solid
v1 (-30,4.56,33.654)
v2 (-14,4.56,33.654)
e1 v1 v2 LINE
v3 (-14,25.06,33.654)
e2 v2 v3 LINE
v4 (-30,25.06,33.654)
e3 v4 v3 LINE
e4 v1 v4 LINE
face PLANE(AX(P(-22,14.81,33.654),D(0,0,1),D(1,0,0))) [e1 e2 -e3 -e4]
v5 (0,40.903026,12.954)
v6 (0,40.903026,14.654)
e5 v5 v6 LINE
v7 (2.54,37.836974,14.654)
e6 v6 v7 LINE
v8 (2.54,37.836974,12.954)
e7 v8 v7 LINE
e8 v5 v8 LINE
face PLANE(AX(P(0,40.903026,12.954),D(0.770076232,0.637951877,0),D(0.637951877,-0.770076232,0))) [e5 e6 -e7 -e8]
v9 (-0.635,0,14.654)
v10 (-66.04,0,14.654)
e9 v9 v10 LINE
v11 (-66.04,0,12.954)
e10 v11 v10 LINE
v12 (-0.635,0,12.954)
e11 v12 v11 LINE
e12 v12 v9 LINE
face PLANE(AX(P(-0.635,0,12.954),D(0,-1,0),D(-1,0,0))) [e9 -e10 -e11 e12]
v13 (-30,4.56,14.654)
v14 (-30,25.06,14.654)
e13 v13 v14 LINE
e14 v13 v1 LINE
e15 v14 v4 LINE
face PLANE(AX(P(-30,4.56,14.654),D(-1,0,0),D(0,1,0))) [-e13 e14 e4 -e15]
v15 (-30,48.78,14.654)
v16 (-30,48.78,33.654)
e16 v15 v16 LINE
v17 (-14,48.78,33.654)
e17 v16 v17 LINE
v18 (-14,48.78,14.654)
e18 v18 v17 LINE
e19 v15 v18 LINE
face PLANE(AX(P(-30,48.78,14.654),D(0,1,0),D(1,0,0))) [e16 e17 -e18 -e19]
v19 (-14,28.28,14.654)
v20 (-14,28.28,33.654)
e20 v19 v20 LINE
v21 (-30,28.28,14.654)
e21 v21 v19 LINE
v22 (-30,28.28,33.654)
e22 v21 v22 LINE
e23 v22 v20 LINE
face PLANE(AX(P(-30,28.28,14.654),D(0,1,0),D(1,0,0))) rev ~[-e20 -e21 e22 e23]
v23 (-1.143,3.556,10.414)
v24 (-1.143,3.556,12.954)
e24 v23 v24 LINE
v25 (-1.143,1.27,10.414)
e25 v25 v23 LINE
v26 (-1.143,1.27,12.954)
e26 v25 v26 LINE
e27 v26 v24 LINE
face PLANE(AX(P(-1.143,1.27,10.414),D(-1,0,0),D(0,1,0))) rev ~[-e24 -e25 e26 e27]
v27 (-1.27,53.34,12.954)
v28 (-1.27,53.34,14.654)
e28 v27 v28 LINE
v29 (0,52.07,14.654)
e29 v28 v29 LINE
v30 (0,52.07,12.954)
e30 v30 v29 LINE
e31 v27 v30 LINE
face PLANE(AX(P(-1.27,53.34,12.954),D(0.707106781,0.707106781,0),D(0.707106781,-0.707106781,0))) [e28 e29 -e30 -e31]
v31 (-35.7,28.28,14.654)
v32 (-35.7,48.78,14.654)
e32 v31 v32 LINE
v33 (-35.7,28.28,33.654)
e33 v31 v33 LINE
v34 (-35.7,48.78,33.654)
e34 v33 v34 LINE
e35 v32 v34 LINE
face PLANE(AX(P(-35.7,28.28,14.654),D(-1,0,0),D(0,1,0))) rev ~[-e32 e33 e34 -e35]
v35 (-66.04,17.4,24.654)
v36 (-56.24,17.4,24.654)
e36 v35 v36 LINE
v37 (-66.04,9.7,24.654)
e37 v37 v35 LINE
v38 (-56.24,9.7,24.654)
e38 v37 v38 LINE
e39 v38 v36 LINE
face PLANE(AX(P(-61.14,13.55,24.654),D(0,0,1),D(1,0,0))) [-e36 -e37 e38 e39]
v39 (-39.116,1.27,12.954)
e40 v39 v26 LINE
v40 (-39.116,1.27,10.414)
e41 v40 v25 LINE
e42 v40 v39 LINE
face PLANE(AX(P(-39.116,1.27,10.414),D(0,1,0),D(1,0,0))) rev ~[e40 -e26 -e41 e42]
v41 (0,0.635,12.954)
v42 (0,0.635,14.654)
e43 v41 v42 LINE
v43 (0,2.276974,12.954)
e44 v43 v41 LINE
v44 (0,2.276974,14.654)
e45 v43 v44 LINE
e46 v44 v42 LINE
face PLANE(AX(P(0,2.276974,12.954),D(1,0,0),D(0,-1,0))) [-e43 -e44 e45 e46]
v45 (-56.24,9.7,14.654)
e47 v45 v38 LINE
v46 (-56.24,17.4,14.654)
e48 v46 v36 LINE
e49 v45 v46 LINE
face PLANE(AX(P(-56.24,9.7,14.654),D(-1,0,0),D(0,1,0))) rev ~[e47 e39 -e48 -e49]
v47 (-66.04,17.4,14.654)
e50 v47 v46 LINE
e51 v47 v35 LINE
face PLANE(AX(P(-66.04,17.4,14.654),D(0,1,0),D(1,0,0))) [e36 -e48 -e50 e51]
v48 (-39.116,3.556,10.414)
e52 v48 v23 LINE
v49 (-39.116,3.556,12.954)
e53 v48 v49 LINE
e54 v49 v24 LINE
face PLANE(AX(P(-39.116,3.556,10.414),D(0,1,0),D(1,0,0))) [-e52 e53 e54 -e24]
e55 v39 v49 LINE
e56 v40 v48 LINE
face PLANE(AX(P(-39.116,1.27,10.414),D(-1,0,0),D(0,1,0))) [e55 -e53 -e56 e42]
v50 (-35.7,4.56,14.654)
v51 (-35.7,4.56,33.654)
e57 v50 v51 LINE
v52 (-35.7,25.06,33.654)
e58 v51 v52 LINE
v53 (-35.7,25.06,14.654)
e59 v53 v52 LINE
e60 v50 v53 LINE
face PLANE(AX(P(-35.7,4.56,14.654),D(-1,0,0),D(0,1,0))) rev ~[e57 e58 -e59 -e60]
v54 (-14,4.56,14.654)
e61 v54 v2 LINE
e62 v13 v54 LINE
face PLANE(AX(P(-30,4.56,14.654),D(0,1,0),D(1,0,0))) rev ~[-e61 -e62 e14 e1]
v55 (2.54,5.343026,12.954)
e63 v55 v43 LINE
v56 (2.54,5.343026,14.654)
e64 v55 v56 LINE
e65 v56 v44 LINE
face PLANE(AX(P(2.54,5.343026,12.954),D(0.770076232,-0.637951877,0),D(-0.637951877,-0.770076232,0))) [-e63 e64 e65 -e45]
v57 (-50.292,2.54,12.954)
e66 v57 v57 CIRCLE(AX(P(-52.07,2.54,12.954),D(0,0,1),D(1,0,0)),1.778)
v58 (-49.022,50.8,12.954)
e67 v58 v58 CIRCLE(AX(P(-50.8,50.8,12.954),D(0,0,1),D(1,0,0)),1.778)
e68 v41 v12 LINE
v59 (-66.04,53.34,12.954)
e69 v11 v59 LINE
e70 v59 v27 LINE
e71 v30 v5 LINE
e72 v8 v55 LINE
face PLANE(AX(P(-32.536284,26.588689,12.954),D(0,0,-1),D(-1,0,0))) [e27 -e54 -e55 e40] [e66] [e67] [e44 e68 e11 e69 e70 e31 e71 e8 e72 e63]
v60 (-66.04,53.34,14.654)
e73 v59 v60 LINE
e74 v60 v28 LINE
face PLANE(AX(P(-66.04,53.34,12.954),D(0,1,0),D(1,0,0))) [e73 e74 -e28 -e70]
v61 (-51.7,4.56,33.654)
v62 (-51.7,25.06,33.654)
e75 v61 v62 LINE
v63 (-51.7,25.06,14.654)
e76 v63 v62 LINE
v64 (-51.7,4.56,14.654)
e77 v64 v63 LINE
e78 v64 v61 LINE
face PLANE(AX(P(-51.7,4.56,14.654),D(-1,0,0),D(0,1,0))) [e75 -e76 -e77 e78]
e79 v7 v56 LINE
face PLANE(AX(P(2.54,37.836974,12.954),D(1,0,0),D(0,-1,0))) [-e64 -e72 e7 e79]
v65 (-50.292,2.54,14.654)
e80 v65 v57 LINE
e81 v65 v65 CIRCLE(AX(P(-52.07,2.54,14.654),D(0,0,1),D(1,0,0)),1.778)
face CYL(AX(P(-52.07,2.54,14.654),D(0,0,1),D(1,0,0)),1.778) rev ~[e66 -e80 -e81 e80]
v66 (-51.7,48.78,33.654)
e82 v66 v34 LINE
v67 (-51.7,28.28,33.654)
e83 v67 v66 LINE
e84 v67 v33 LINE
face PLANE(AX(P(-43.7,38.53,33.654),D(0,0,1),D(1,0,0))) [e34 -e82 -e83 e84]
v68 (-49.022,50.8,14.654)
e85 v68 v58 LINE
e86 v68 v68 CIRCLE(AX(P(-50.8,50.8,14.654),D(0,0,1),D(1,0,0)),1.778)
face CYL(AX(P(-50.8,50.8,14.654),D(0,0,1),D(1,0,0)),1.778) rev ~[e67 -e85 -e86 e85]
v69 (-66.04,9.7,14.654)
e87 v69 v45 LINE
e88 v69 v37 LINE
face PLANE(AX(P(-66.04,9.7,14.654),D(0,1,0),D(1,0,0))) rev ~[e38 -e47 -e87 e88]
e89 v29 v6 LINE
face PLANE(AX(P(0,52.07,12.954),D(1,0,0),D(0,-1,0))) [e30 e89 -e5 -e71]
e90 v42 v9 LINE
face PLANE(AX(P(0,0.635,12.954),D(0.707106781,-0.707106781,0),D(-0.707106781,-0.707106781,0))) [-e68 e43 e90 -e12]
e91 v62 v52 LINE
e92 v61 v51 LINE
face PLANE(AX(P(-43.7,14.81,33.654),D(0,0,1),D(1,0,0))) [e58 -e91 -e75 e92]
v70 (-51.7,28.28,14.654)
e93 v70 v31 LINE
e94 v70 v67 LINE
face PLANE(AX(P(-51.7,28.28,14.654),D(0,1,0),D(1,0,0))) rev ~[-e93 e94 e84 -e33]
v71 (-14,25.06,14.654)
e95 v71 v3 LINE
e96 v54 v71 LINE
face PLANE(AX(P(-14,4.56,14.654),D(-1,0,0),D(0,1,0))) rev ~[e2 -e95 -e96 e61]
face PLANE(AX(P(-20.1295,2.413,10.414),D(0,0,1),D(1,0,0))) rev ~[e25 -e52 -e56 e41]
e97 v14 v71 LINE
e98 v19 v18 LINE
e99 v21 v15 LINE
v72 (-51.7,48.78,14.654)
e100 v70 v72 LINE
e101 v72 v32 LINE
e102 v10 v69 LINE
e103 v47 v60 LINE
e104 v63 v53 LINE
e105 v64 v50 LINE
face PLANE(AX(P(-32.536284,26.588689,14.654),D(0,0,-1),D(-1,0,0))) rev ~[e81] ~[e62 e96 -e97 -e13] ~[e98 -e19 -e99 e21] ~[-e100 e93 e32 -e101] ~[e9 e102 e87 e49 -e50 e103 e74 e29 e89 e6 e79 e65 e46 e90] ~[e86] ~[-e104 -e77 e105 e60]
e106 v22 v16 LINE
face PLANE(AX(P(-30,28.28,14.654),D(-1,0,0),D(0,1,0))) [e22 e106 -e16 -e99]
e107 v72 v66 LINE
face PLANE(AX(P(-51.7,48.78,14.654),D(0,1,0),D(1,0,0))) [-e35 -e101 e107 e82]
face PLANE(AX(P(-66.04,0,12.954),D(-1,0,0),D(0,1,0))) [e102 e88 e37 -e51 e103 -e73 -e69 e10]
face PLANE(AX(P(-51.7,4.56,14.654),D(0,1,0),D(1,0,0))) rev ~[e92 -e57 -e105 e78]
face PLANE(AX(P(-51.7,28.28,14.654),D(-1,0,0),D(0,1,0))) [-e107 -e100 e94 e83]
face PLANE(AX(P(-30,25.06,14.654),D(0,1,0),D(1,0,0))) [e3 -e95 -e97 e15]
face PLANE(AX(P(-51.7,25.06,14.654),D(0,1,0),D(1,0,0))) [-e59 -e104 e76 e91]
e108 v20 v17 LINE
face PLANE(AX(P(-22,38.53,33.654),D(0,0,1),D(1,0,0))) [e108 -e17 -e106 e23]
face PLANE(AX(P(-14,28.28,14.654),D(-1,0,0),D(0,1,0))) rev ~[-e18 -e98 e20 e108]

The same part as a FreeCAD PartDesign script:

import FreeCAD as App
import Part
import Sketcher
from FreeCAD import Vector
Q = App.Units.Quantity


def add_polygon(sketch, points):
    """Adds a closed chain of lines whose ends are joined by coincident constraints."""
    first, n = sketch.GeometryCount, len(points)
    for a, b in zip(points, points[1:] + points[:1]):
        sketch.addGeometry(Part.LineSegment(App.Vector(*a, 0), App.Vector(*b, 0)), False)
    for i in range(n):
        sketch.addConstraint(Sketcher.Constraint("Coincident", first + i, 2, first + (i + 1) % n, 1))

doc = App.newDocument("Part")
params = doc.addObject("Spreadsheet::Sheet", "Params")
for row, (alias, value) in enumerate([
    ("pad1_length", "2.54 mm"),
    ("sketch2_width", "64.77 mm"),
    ("sketch2_height", "53.34 mm"),
    ("pad2_length", "1.7 mm"),
    ("pocket1_length", "5 mm"),
    ("sketch4_width", "16 mm"),
    ("sketch4_height", "20.5 mm"),
    ("pad3_length", "19 mm"),
    ("sketch5_width", "9.8 mm"),
    ("sketch5_height", "7.7 mm"),
    ("pad4_length", "10 mm"),
], start=1):
    params.set(f"A{row}", alias)
    params.set(f"B{row}", "=" + value)
    params.setAlias(f"B{row}", alias)

body = doc.addObject("PartDesign::Body", "Body")

# Sketch on XY plane
sketch1 = body.newObject("Sketcher::SketchObject", "Sketch")
sketch1.AttachmentSupport = (doc.getObject("XY_Plane"), [""])
sketch1.MapMode = "FlatFace"
sketch1.AttachmentOffset = App.Placement(Vector(0, 0, 10.414), App.Rotation())
add_polygon(sketch1, [(-39.1, 3.6), (-39.1, 1.3), (-1.1, 1.3), (-1.1, 3.6)])  # lines 0-3
sketch1.addConstraint([
    Sketcher.Constraint("Vertical", 0),
    Sketcher.Constraint("Horizontal", 1),
    Sketcher.Constraint("Vertical", 2),
    Sketcher.Constraint("Horizontal", 3),
    Sketcher.Constraint("DistanceX", 1, 1, 1, 2, 37.973),
    Sketcher.Constraint("DistanceY", 0, 2, 0, 1, 2.286),
    Sketcher.Constraint("DistanceY", -1, 1, 0, 2, 1.27),
    Sketcher.Constraint("DistanceX", 0, 2, -1, 1, 39.116),
])
pad1 = body.newObject("PartDesign::Pad", "Pad")
pad1.Profile = sketch1
pad1.setExpression("Length", "Params.pad1_length")

# Sketch on XY plane
sketch2 = body.newObject("Sketcher::SketchObject", "Sketch001")
sketch2.AttachmentSupport = (doc.getObject("XY_Plane"), [""])
sketch2.MapMode = "FlatFace"
sketch2.AttachmentOffset = App.Placement(Vector(0, 0, 12.954), App.Rotation())
add_polygon(sketch2, [(-1.3, 53.3), (-66, 53.3), (-66, 0), (-0.6, 0), (0, 0.6), (0, 2.3), (2.5, 5.3), (2.5, 37.8), (0, 40.9), (0, 52.1)])  # lines 0-9
sketch2.addConstraint([
    Sketcher.Constraint("Horizontal", 0),
    Sketcher.Constraint("Vertical", 1),
    Sketcher.Constraint("Horizontal", 2),
    Sketcher.Constraint("Vertical", 4),
    Sketcher.Constraint("Vertical", 6),
    Sketcher.Constraint("Vertical", 8),
    Sketcher.Constraint("PointOnObject", 1, 2, -1),
    Sketcher.Constraint("PointOnObject", 3, 2, -2),
    Sketcher.Constraint("PointOnObject", 7, 2, -2),
    Sketcher.Constraint("Perpendicular", 3, 9),
    Sketcher.Constraint("Equal", 5, 7),
    Sketcher.Constraint("Angle", 3, Q("45 deg")),
    Sketcher.Constraint("DistanceX", 0, 2, 0, 1, 64.77),
    Sketcher.Constraint("DistanceY", 1, 2, 1, 1, 53.34),
    Sketcher.Constraint("DistanceX", 2, 1, 2, 2, 65.405),
    Sketcher.Constraint("DistanceX", 0, 2, -1, 1, 66.04),
    Sketcher.Constraint("DistanceX", -1, 1, 5, 2, 2.54),
    Sketcher.Constraint("DistanceY", 4, 2, 6, 2, 35.56),
    Sketcher.Constraint("Distance", 5, 3.981492),
    Sketcher.Constraint("DistanceY", 4, 1, 4, 2, 1.641974),
])
sketch2.setExpression("Constraints[22]", "Params.sketch2_width")
sketch2.setExpression("Constraints[23]", "Params.sketch2_height")
pad2 = body.newObject("PartDesign::Pad", "Pad001")
pad2.Profile = sketch2
pad2.setExpression("Length", "Params.pad2_length")

# Sketch on XY plane
sketch3 = body.newObject("Sketcher::SketchObject", "Sketch002")
sketch3.AttachmentSupport = (doc.getObject("XY_Plane"), [""])
sketch3.MapMode = "FlatFace"
sketch3.AttachmentOffset = App.Placement(Vector(0, 0, 14.654), App.Rotation())
sketch3.addGeometry([
    Part.Circle(Vector(-52.1, 2.5, 0), Vector(0, 0, 1), 1.8),
    Part.Circle(Vector(-50.8, 50.8, 0), Vector(0, 0, 1), 1.8),
], False)
sketch3.addConstraint([
    Sketcher.Constraint("Equal", 0, 1),
    Sketcher.Constraint("Diameter", 0, 3.556),
    Sketcher.Constraint("DistanceX", 1, 3, -1, 1, 50.8),
    Sketcher.Constraint("DistanceY", -1, 1, 1, 3, 50.8),
    Sketcher.Constraint("DistanceX", 0, 3, -1, 1, 52.07),
    Sketcher.Constraint("DistanceY", -1, 1, 0, 3, 2.54),
])
pocket1 = body.newObject("PartDesign::Pocket", "Pocket")
pocket1.Profile = sketch3
pocket1.setExpression("Length", "Params.pocket1_length")

# Sketch on XY plane
sketch4 = body.newObject("Sketcher::SketchObject", "Sketch003")
sketch4.AttachmentSupport = (doc.getObject("XY_Plane"), [""])
sketch4.MapMode = "FlatFace"
sketch4.AttachmentOffset = App.Placement(Vector(0, 0, 14.654), App.Rotation())
add_polygon(sketch4, [(-52, 49), (-52, 28), (-36, 28), (-36, 49)])  # lines 0-3
add_polygon(sketch4, [(-30, 49), (-30, 28), (-14, 28), (-14, 49)])  # lines 4-7
add_polygon(sketch4, [(-52, 25), (-52, 5), (-36, 5), (-36, 25)])  # lines 8-11
add_polygon(sketch4, [(-30, 25), (-30, 5), (-14, 5), (-14, 25)])  # lines 12-15
sketch4.addConstraint([
    Sketcher.Constraint("Vertical", 0),
    Sketcher.Constraint("Horizontal", 1),
    Sketcher.Constraint("Vertical", 2),
    Sketcher.Constraint("Horizontal", 3),
    Sketcher.Constraint("Vertical", 4),
    Sketcher.Constraint("Horizontal", 5),
    Sketcher.Constraint("Vertical", 6),
    Sketcher.Constraint("Horizontal", 7),
    Sketcher.Constraint("Vertical", 8),
    Sketcher.Constraint("Horizontal", 9),
    Sketcher.Constraint("Vertical", 10),
    Sketcher.Constraint("Horizontal", 11),
    Sketcher.Constraint("Vertical", 12),
    Sketcher.Constraint("Horizontal", 13),
    Sketcher.Constraint("Vertical", 14),
    Sketcher.Constraint("Horizontal", 15),
    Sketcher.Constraint("Horizontal", 1, 2, 4, 2),
    Sketcher.Constraint("Horizontal", 3, 2, 6, 2),
    Sketcher.Constraint("Horizontal", 9, 2, 12, 2),
    Sketcher.Constraint("Horizontal", 11, 2, 14, 2),
    Sketcher.Constraint("Vertical", 3, 2, 8, 2),
    Sketcher.Constraint("Vertical", 2, 2, 9, 2),
    Sketcher.Constraint("Vertical", 7, 2, 12, 2),
    Sketcher.Constraint("Vertical", 6, 2, 13, 2),
    Sketcher.Constraint("Equal", 3, 5),
    Sketcher.Constraint("Equal", 6, 8),
    Sketcher.Constraint("DistanceX", 1, 1, 1, 2, 16.0),
    Sketcher.Constraint("DistanceY", 0, 2, 0, 1, 20.5),
    Sketcher.Constraint("DistanceX", 4, 2, -1, 1, 30.0),
    Sketcher.Constraint("DistanceX", 0, 2, -1, 1, 51.7),
    Sketcher.Constraint("DistanceY", -1, 1, 0, 2, 28.28),
    Sketcher.Constraint("DistanceY", -1, 1, 8, 2, 4.56),
])
sketch4.setExpression("Constraints[42]", "Params.sketch4_width")
sketch4.setExpression("Constraints[43]", "Params.sketch4_height")
pad3 = body.newObject("PartDesign::Pad", "Pad002")
pad3.Profile = sketch4
pad3.setExpression("Length", "Params.pad3_length")

# Sketch on XY plane
sketch5 = body.newObject("Sketcher::SketchObject", "Sketch004")
sketch5.AttachmentSupport = (doc.getObject("XY_Plane"), [""])
sketch5.MapMode = "FlatFace"
sketch5.AttachmentOffset = App.Placement(Vector(0, 0, 14.654), App.Rotation())
add_polygon(sketch5, [(-66, 17), (-66, 10), (-56, 10), (-56, 17)])  # lines 0-3
sketch5.addConstraint([
    Sketcher.Constraint("Vertical", 0),
    Sketcher.Constraint("Horizontal", 1),
    Sketcher.Constraint("Vertical", 2),
    Sketcher.Constraint("Horizontal", 3),
    Sketcher.Constraint("DistanceX", 1, 1, 1, 2, 9.8),
    Sketcher.Constraint("DistanceY", 0, 2, 0, 1, 7.7),
    Sketcher.Constraint("DistanceY", -1, 1, 0, 2, 9.7),
    Sketcher.Constraint("DistanceX", 0, 2, -1, 1, 66.04),
])
sketch5.setExpression("Constraints[8]", "Params.sketch5_width")
sketch5.setExpression("Constraints[9]", "Params.sketch5_height")
pad4 = body.newObject("PartDesign::Pad", "Pad003")
pad4.Profile = sketch5
pad4.setExpression("Length", "Params.pad4_length")

doc.recompute()
